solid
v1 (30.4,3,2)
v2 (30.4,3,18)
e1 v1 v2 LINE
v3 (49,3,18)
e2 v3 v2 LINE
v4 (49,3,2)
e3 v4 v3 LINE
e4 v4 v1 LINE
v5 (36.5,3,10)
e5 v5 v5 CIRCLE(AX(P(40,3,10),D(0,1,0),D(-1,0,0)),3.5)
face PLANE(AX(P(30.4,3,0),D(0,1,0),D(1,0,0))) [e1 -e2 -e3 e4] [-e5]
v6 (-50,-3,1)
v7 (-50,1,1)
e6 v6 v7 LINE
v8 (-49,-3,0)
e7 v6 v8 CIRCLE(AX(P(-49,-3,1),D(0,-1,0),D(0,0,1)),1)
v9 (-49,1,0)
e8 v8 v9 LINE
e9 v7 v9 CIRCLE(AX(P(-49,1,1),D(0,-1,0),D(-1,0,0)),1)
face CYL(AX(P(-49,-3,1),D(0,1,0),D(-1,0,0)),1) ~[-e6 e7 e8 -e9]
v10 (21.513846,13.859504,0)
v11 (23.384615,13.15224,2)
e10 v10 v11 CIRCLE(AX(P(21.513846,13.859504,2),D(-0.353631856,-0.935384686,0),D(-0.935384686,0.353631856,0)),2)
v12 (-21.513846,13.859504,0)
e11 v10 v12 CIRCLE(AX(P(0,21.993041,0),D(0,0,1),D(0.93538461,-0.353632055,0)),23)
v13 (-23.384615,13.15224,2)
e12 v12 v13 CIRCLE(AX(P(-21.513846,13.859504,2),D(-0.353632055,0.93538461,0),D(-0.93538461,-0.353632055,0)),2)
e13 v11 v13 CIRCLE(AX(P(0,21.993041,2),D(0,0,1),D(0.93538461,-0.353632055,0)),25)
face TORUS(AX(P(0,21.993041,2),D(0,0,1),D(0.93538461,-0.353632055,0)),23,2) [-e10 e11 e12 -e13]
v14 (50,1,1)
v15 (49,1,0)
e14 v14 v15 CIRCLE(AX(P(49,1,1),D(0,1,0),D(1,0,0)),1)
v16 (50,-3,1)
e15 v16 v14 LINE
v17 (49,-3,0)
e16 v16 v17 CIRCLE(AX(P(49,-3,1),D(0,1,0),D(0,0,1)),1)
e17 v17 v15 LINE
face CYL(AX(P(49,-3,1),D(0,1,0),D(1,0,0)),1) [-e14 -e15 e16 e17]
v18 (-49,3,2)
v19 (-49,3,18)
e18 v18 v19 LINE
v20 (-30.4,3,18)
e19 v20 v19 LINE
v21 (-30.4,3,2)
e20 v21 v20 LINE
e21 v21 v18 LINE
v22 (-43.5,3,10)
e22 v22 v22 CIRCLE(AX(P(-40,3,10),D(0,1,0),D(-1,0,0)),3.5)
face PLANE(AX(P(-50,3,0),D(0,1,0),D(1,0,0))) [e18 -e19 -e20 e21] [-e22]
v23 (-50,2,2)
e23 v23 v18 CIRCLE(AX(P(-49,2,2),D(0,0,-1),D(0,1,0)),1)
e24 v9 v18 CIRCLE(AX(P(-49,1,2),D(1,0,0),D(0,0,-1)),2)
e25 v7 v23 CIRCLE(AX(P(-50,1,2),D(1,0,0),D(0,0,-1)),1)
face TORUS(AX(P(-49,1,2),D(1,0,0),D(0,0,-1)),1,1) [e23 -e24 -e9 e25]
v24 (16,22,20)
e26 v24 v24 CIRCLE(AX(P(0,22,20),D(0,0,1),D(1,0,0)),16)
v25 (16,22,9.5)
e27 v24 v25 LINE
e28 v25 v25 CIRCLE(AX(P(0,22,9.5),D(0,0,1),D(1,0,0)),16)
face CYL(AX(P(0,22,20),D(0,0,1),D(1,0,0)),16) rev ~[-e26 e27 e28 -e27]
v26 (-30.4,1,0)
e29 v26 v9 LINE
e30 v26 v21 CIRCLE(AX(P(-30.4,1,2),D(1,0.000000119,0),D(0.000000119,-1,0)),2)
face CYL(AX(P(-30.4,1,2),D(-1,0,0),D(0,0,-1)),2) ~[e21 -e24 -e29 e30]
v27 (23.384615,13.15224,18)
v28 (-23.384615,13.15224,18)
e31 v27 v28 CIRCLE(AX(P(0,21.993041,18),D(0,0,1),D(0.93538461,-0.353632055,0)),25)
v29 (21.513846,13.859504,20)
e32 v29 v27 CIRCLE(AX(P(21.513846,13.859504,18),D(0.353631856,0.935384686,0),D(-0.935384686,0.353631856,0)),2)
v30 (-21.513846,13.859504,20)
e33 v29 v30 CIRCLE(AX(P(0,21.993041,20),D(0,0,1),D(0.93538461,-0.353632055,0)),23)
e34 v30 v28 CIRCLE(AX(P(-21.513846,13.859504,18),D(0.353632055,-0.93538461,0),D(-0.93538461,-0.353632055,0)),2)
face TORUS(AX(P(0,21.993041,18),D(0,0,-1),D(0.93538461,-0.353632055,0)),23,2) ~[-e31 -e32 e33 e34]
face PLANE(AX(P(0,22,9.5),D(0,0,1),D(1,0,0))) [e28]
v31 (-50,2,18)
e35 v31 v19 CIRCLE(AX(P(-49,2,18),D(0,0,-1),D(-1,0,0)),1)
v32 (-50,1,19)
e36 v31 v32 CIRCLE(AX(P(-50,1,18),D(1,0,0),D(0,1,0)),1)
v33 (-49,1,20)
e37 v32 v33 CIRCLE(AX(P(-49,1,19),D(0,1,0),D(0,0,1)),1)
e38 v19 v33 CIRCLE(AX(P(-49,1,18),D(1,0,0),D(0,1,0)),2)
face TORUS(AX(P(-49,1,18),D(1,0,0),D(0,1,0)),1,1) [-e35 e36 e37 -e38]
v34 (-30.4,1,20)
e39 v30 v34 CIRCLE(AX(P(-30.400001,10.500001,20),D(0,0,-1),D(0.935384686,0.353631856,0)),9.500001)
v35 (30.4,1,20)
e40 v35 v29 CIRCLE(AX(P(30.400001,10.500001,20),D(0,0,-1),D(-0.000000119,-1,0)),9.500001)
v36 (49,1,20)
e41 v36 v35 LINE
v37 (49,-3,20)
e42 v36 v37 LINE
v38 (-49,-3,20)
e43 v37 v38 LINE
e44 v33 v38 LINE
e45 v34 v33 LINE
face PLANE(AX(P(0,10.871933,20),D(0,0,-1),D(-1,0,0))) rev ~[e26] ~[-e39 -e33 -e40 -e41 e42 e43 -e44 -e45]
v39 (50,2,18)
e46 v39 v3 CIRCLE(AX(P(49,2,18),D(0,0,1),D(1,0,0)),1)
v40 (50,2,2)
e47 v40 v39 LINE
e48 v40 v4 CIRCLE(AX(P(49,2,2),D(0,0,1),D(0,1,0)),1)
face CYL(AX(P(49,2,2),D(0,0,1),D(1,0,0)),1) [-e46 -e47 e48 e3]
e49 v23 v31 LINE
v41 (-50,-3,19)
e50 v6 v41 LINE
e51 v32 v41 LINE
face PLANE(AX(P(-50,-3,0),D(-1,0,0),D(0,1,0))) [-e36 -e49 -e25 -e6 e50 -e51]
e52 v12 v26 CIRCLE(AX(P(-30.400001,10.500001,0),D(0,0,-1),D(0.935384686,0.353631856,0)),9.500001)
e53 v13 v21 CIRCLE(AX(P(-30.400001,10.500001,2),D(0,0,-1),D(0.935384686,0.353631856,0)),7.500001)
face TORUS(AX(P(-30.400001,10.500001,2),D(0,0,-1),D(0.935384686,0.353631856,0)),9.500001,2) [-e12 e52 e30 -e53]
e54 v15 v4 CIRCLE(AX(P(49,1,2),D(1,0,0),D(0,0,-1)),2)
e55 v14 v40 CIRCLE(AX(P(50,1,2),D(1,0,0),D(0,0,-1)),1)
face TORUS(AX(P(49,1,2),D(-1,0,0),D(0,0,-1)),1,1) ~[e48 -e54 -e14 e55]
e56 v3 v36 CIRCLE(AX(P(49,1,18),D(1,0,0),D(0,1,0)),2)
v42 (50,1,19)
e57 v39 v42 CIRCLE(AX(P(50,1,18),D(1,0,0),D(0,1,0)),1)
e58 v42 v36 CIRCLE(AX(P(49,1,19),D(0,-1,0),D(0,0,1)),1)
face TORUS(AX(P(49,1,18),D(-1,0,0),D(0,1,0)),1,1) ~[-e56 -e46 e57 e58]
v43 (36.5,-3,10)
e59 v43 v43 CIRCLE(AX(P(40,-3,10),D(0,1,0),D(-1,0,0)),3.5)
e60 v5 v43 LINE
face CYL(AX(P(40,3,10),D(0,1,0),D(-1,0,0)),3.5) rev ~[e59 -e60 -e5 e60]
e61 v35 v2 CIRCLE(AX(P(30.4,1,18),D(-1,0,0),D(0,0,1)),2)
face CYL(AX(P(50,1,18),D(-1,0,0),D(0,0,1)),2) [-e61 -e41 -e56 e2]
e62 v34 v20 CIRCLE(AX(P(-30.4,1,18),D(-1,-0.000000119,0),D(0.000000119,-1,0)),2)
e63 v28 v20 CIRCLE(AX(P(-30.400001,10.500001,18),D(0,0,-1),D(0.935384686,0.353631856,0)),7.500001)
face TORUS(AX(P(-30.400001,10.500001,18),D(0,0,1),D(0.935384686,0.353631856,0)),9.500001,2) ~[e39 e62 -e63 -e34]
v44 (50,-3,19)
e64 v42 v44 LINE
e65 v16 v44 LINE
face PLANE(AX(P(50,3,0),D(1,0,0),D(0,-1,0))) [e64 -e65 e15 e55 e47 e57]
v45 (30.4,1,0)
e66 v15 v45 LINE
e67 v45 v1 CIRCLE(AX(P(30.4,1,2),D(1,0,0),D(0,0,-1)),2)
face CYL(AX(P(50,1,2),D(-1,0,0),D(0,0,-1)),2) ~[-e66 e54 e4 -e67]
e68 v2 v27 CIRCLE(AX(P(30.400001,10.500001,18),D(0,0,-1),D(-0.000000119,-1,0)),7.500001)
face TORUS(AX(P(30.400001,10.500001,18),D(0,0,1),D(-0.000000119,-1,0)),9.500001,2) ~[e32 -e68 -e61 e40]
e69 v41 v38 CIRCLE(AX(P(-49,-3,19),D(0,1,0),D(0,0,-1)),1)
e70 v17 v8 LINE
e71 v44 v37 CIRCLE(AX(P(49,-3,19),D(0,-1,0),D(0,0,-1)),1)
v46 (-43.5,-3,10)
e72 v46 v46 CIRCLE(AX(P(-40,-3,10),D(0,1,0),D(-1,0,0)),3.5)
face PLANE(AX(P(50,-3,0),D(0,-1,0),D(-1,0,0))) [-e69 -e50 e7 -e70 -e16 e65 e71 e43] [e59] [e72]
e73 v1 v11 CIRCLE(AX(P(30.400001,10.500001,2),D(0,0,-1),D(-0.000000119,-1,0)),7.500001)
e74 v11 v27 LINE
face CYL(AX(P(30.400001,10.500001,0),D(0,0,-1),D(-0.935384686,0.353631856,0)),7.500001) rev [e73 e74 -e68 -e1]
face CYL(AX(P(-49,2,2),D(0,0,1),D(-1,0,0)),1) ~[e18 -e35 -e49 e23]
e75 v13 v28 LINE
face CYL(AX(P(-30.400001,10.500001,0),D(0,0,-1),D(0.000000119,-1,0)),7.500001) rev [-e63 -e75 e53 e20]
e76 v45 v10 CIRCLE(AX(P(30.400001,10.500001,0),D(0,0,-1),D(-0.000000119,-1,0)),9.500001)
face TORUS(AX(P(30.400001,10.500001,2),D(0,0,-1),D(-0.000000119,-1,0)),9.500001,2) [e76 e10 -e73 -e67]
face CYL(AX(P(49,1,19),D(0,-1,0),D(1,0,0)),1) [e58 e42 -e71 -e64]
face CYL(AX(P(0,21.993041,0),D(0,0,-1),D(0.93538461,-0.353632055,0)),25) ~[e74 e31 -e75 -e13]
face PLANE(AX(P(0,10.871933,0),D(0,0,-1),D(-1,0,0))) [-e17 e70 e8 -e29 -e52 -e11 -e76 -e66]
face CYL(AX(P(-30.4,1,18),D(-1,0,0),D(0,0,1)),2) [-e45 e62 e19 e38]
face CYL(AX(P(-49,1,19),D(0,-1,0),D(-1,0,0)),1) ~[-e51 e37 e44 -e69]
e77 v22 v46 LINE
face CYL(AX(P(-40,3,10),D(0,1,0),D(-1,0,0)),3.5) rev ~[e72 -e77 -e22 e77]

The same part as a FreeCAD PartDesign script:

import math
import FreeCAD as App
import Part
import Sketcher
from FreeCAD import Vector


def edges_at(feature, points):
    """Names of the edges that pass closest to the given points."""
    edges = feature.Shape.Edges
    near = lambda p: min(range(len(edges)), key=lambda i: edges[i].distToShape(Part.Vertex(*p))[0])
    return sorted({f"Edge{near(p) + 1}" for p in points})

doc = App.newDocument("Part")
params = doc.addObject("Spreadsheet::Sheet", "Params")
for row, (alias, value) in enumerate([
    ("sketch1_radius", "25 mm"),
    ("sketch1_radius2", "7.500001 mm"),
    ("sketch1_width", "100 mm"),
    ("sketch1_height", "6 mm"),
    ("sketch1_width2", "19.6 mm"),
    ("pad1_length", "20 mm"),
    ("sketch2_diameter", "32 mm"),
    ("pocket1_length", "10.5 mm"),
    ("sketch3_diameter", "7 mm"),
    ("pocket2_length", "10 mm"),
    ("fillet_radius", "2 mm"),
    ("fillet2_radius", "2 mm"),
    ("fillet3_radius", "1 mm"),
    ("fillet4_radius", "1 mm"),
], start=1):
    params.set(f"A{row}", alias)
    params.set(f"B{row}", "=" + value)
    params.setAlias(f"B{row}", alias)

body = doc.addObject("PartDesign::Body", "Body")

sketch1 = body.newObject("Sketcher::SketchObject", "Sketch")
sketch1.AttachmentSupport = (doc.getObject("XY_Plane"), [""])
sketch1.MapMode = "FlatFace"
sketch1.addGeometry([
    Part.LineSegment(Vector(-50, 3, 0), Vector(-50, -3, 0)),
    Part.LineSegment(Vector(-50, -3, 0), Vector(50, -3, 0)),
    Part.LineSegment(Vector(50, -3, 0), Vector(50, 3, 0)),
    Part.LineSegment(Vector(50, 3, 0), Vector(30, 3, 0)),
    Part.ArcOfCircle(Part.Circle(Vector(30, 11, 0), Vector(0, 0, 1), 8), math.radians(159), math.radians(270)),
    Part.ArcOfCircle(Part.Circle(Vector(0, 22, 0), Vector(0, 0, 1), 25), math.radians(-21), math.radians(201)),
    Part.ArcOfCircle(Part.Circle(Vector(-30, 11, 0), Vector(0, 0, 1), 8), math.radians(-90), math.radians(21)),
    Part.LineSegment(Vector(-30, 3, 0), Vector(-50, 3, 0)),
], False)
sketch1.addConstraint([
    Sketcher.Constraint("Coincident", 0, 2, 1, 1),
    Sketcher.Constraint("Coincident", 1, 2, 2, 1),
    Sketcher.Constraint("Coincident", 2, 2, 3, 1),
    Sketcher.Constraint("Tangent", 3, 2, 4, 2),
    Sketcher.Constraint("Tangent", 4, 1, 5, 1),
    Sketcher.Constraint("Tangent", 5, 2, 6, 2),
    Sketcher.Constraint("Tangent", 6, 1, 7, 1),
    Sketcher.Constraint("Coincident", 7, 2, 0, 1),
    Sketcher.Constraint("Vertical", 0),
    Sketcher.Constraint("Horizontal", 1),
    Sketcher.Constraint("Vertical", 2),
    Sketcher.Constraint("Horizontal", 3),
    Sketcher.Constraint("Horizontal", 7),
    Sketcher.Constraint("Equal", 4, 6),
    Sketcher.Constraint("Symmetric", 0, 2, 2, 2, -1, 1),
    Sketcher.Constraint("Symmetric", 4, 3, 6, 3, -2),
    Sketcher.Constraint("Radius", 5, 25.0),
    Sketcher.Constraint("Radius", 4, 7.500001),
    Sketcher.Constraint("DistanceX", 1, 1, 1, 2, 100.0),
    Sketcher.Constraint("DistanceY", 0, 2, 0, 1, 6.0),
    Sketcher.Constraint("DistanceX", 3, 2, 3, 1, 19.6),
])
sketch1.setExpression("Constraints[16]", "Params.sketch1_radius")
sketch1.setExpression("Constraints[17]", "Params.sketch1_radius2")
sketch1.setExpression("Constraints[18]", "Params.sketch1_width")
sketch1.setExpression("Constraints[19]", "Params.sketch1_height")
sketch1.setExpression("Constraints[20]", "Params.sketch1_width2")
pad1 = body.newObject("PartDesign::Pad", "Pad")
pad1.Profile = sketch1
pad1.setExpression("Length", "Params.pad1_length")

sketch2 = body.newObject("Sketcher::SketchObject", "Sketch001")
sketch2.AttachmentSupport = (doc.getObject("XY_Plane"), [""])
sketch2.MapMode = "FlatFace"
sketch2.AttachmentOffset = App.Placement(Vector(0, 0, 20), App.Rotation())
sketch2.addGeometry(Part.Circle(Vector(0, 22, 0), Vector(0, 0, 1), 16), False)
sketch2.addConstraint([
    Sketcher.Constraint("PointOnObject", 0, 3, -2),
    Sketcher.Constraint("Diameter", 0, 32.0),
    Sketcher.Constraint("DistanceY", -1, 1, 0, 3, 22.0),
])
sketch2.setExpression("Constraints[1]", "Params.sketch2_diameter")
pocket1 = body.newObject("PartDesign::Pocket", "Pocket")
pocket1.Profile = sketch2
pocket1.setExpression("Length", "Params.pocket1_length")

sketch3 = body.newObject("Sketcher::SketchObject", "Sketch002")
sketch3.AttachmentSupport = (doc.getObject("XZ_Plane"), [""])
sketch3.MapMode = "FlatFace"
sketch3.AttachmentOffset = App.Placement(Vector(0, 0, -3), App.Rotation())
sketch3.addGeometry([
    Part.Circle(Vector(40, 10, 0), Vector(0, 0, 1), 3.5),
    Part.Circle(Vector(-40, 10, 0), Vector(0, 0, 1), 3.5),
], False)
sketch3.addConstraint([
    Sketcher.Constraint("Equal", 0, 1),
    Sketcher.Constraint("Symmetric", 0, 3, 1, 3, -2),
    Sketcher.Constraint("Diameter", 0, 7.0),
    Sketcher.Constraint("DistanceX", -1, 1, 0, 3, 40.0),
    Sketcher.Constraint("DistanceY", -1, 1, 0, 3, 10.0),
])
sketch3.setExpression("Constraints[2]", "Params.sketch3_diameter")
pocket2 = body.newObject("PartDesign::Pocket", "Pocket001")
pocket2.Profile = sketch3
pocket2.setExpression("Length", "Params.pocket2_length")
pocket2.Reversed = True
doc.recompute()

fillet = body.newObject("PartDesign::Fillet", "Fillet")
fillet.Base = (pocket2, edges_at(pocket2, [(0, 46.993, 20)]))
fillet.setExpression("Radius", "Params.fillet_radius")
doc.recompute()

fillet2 = body.newObject("PartDesign::Fillet", "Fillet001")
fillet2.Base = (fillet, edges_at(fillet, [(0, 46.993, 0)]))
fillet2.setExpression("Radius", "Params.fillet2_radius")
doc.recompute()

fillet3 = body.newObject("PartDesign::Fillet", "Fillet002")
fillet3.Base = (fillet2, edges_at(fillet2, [(-50, 3, 10)]))
fillet3.setExpression("Radius", "Params.fillet3_radius")
doc.recompute()

fillet4 = body.newObject("PartDesign::Fillet", "Fillet003")
fillet4.Base = (fillet3, edges_at(fillet3, [(50, 3, 10)]))
fillet4.setExpression("Radius", "Params.fillet4_radius")

doc.recompute()
